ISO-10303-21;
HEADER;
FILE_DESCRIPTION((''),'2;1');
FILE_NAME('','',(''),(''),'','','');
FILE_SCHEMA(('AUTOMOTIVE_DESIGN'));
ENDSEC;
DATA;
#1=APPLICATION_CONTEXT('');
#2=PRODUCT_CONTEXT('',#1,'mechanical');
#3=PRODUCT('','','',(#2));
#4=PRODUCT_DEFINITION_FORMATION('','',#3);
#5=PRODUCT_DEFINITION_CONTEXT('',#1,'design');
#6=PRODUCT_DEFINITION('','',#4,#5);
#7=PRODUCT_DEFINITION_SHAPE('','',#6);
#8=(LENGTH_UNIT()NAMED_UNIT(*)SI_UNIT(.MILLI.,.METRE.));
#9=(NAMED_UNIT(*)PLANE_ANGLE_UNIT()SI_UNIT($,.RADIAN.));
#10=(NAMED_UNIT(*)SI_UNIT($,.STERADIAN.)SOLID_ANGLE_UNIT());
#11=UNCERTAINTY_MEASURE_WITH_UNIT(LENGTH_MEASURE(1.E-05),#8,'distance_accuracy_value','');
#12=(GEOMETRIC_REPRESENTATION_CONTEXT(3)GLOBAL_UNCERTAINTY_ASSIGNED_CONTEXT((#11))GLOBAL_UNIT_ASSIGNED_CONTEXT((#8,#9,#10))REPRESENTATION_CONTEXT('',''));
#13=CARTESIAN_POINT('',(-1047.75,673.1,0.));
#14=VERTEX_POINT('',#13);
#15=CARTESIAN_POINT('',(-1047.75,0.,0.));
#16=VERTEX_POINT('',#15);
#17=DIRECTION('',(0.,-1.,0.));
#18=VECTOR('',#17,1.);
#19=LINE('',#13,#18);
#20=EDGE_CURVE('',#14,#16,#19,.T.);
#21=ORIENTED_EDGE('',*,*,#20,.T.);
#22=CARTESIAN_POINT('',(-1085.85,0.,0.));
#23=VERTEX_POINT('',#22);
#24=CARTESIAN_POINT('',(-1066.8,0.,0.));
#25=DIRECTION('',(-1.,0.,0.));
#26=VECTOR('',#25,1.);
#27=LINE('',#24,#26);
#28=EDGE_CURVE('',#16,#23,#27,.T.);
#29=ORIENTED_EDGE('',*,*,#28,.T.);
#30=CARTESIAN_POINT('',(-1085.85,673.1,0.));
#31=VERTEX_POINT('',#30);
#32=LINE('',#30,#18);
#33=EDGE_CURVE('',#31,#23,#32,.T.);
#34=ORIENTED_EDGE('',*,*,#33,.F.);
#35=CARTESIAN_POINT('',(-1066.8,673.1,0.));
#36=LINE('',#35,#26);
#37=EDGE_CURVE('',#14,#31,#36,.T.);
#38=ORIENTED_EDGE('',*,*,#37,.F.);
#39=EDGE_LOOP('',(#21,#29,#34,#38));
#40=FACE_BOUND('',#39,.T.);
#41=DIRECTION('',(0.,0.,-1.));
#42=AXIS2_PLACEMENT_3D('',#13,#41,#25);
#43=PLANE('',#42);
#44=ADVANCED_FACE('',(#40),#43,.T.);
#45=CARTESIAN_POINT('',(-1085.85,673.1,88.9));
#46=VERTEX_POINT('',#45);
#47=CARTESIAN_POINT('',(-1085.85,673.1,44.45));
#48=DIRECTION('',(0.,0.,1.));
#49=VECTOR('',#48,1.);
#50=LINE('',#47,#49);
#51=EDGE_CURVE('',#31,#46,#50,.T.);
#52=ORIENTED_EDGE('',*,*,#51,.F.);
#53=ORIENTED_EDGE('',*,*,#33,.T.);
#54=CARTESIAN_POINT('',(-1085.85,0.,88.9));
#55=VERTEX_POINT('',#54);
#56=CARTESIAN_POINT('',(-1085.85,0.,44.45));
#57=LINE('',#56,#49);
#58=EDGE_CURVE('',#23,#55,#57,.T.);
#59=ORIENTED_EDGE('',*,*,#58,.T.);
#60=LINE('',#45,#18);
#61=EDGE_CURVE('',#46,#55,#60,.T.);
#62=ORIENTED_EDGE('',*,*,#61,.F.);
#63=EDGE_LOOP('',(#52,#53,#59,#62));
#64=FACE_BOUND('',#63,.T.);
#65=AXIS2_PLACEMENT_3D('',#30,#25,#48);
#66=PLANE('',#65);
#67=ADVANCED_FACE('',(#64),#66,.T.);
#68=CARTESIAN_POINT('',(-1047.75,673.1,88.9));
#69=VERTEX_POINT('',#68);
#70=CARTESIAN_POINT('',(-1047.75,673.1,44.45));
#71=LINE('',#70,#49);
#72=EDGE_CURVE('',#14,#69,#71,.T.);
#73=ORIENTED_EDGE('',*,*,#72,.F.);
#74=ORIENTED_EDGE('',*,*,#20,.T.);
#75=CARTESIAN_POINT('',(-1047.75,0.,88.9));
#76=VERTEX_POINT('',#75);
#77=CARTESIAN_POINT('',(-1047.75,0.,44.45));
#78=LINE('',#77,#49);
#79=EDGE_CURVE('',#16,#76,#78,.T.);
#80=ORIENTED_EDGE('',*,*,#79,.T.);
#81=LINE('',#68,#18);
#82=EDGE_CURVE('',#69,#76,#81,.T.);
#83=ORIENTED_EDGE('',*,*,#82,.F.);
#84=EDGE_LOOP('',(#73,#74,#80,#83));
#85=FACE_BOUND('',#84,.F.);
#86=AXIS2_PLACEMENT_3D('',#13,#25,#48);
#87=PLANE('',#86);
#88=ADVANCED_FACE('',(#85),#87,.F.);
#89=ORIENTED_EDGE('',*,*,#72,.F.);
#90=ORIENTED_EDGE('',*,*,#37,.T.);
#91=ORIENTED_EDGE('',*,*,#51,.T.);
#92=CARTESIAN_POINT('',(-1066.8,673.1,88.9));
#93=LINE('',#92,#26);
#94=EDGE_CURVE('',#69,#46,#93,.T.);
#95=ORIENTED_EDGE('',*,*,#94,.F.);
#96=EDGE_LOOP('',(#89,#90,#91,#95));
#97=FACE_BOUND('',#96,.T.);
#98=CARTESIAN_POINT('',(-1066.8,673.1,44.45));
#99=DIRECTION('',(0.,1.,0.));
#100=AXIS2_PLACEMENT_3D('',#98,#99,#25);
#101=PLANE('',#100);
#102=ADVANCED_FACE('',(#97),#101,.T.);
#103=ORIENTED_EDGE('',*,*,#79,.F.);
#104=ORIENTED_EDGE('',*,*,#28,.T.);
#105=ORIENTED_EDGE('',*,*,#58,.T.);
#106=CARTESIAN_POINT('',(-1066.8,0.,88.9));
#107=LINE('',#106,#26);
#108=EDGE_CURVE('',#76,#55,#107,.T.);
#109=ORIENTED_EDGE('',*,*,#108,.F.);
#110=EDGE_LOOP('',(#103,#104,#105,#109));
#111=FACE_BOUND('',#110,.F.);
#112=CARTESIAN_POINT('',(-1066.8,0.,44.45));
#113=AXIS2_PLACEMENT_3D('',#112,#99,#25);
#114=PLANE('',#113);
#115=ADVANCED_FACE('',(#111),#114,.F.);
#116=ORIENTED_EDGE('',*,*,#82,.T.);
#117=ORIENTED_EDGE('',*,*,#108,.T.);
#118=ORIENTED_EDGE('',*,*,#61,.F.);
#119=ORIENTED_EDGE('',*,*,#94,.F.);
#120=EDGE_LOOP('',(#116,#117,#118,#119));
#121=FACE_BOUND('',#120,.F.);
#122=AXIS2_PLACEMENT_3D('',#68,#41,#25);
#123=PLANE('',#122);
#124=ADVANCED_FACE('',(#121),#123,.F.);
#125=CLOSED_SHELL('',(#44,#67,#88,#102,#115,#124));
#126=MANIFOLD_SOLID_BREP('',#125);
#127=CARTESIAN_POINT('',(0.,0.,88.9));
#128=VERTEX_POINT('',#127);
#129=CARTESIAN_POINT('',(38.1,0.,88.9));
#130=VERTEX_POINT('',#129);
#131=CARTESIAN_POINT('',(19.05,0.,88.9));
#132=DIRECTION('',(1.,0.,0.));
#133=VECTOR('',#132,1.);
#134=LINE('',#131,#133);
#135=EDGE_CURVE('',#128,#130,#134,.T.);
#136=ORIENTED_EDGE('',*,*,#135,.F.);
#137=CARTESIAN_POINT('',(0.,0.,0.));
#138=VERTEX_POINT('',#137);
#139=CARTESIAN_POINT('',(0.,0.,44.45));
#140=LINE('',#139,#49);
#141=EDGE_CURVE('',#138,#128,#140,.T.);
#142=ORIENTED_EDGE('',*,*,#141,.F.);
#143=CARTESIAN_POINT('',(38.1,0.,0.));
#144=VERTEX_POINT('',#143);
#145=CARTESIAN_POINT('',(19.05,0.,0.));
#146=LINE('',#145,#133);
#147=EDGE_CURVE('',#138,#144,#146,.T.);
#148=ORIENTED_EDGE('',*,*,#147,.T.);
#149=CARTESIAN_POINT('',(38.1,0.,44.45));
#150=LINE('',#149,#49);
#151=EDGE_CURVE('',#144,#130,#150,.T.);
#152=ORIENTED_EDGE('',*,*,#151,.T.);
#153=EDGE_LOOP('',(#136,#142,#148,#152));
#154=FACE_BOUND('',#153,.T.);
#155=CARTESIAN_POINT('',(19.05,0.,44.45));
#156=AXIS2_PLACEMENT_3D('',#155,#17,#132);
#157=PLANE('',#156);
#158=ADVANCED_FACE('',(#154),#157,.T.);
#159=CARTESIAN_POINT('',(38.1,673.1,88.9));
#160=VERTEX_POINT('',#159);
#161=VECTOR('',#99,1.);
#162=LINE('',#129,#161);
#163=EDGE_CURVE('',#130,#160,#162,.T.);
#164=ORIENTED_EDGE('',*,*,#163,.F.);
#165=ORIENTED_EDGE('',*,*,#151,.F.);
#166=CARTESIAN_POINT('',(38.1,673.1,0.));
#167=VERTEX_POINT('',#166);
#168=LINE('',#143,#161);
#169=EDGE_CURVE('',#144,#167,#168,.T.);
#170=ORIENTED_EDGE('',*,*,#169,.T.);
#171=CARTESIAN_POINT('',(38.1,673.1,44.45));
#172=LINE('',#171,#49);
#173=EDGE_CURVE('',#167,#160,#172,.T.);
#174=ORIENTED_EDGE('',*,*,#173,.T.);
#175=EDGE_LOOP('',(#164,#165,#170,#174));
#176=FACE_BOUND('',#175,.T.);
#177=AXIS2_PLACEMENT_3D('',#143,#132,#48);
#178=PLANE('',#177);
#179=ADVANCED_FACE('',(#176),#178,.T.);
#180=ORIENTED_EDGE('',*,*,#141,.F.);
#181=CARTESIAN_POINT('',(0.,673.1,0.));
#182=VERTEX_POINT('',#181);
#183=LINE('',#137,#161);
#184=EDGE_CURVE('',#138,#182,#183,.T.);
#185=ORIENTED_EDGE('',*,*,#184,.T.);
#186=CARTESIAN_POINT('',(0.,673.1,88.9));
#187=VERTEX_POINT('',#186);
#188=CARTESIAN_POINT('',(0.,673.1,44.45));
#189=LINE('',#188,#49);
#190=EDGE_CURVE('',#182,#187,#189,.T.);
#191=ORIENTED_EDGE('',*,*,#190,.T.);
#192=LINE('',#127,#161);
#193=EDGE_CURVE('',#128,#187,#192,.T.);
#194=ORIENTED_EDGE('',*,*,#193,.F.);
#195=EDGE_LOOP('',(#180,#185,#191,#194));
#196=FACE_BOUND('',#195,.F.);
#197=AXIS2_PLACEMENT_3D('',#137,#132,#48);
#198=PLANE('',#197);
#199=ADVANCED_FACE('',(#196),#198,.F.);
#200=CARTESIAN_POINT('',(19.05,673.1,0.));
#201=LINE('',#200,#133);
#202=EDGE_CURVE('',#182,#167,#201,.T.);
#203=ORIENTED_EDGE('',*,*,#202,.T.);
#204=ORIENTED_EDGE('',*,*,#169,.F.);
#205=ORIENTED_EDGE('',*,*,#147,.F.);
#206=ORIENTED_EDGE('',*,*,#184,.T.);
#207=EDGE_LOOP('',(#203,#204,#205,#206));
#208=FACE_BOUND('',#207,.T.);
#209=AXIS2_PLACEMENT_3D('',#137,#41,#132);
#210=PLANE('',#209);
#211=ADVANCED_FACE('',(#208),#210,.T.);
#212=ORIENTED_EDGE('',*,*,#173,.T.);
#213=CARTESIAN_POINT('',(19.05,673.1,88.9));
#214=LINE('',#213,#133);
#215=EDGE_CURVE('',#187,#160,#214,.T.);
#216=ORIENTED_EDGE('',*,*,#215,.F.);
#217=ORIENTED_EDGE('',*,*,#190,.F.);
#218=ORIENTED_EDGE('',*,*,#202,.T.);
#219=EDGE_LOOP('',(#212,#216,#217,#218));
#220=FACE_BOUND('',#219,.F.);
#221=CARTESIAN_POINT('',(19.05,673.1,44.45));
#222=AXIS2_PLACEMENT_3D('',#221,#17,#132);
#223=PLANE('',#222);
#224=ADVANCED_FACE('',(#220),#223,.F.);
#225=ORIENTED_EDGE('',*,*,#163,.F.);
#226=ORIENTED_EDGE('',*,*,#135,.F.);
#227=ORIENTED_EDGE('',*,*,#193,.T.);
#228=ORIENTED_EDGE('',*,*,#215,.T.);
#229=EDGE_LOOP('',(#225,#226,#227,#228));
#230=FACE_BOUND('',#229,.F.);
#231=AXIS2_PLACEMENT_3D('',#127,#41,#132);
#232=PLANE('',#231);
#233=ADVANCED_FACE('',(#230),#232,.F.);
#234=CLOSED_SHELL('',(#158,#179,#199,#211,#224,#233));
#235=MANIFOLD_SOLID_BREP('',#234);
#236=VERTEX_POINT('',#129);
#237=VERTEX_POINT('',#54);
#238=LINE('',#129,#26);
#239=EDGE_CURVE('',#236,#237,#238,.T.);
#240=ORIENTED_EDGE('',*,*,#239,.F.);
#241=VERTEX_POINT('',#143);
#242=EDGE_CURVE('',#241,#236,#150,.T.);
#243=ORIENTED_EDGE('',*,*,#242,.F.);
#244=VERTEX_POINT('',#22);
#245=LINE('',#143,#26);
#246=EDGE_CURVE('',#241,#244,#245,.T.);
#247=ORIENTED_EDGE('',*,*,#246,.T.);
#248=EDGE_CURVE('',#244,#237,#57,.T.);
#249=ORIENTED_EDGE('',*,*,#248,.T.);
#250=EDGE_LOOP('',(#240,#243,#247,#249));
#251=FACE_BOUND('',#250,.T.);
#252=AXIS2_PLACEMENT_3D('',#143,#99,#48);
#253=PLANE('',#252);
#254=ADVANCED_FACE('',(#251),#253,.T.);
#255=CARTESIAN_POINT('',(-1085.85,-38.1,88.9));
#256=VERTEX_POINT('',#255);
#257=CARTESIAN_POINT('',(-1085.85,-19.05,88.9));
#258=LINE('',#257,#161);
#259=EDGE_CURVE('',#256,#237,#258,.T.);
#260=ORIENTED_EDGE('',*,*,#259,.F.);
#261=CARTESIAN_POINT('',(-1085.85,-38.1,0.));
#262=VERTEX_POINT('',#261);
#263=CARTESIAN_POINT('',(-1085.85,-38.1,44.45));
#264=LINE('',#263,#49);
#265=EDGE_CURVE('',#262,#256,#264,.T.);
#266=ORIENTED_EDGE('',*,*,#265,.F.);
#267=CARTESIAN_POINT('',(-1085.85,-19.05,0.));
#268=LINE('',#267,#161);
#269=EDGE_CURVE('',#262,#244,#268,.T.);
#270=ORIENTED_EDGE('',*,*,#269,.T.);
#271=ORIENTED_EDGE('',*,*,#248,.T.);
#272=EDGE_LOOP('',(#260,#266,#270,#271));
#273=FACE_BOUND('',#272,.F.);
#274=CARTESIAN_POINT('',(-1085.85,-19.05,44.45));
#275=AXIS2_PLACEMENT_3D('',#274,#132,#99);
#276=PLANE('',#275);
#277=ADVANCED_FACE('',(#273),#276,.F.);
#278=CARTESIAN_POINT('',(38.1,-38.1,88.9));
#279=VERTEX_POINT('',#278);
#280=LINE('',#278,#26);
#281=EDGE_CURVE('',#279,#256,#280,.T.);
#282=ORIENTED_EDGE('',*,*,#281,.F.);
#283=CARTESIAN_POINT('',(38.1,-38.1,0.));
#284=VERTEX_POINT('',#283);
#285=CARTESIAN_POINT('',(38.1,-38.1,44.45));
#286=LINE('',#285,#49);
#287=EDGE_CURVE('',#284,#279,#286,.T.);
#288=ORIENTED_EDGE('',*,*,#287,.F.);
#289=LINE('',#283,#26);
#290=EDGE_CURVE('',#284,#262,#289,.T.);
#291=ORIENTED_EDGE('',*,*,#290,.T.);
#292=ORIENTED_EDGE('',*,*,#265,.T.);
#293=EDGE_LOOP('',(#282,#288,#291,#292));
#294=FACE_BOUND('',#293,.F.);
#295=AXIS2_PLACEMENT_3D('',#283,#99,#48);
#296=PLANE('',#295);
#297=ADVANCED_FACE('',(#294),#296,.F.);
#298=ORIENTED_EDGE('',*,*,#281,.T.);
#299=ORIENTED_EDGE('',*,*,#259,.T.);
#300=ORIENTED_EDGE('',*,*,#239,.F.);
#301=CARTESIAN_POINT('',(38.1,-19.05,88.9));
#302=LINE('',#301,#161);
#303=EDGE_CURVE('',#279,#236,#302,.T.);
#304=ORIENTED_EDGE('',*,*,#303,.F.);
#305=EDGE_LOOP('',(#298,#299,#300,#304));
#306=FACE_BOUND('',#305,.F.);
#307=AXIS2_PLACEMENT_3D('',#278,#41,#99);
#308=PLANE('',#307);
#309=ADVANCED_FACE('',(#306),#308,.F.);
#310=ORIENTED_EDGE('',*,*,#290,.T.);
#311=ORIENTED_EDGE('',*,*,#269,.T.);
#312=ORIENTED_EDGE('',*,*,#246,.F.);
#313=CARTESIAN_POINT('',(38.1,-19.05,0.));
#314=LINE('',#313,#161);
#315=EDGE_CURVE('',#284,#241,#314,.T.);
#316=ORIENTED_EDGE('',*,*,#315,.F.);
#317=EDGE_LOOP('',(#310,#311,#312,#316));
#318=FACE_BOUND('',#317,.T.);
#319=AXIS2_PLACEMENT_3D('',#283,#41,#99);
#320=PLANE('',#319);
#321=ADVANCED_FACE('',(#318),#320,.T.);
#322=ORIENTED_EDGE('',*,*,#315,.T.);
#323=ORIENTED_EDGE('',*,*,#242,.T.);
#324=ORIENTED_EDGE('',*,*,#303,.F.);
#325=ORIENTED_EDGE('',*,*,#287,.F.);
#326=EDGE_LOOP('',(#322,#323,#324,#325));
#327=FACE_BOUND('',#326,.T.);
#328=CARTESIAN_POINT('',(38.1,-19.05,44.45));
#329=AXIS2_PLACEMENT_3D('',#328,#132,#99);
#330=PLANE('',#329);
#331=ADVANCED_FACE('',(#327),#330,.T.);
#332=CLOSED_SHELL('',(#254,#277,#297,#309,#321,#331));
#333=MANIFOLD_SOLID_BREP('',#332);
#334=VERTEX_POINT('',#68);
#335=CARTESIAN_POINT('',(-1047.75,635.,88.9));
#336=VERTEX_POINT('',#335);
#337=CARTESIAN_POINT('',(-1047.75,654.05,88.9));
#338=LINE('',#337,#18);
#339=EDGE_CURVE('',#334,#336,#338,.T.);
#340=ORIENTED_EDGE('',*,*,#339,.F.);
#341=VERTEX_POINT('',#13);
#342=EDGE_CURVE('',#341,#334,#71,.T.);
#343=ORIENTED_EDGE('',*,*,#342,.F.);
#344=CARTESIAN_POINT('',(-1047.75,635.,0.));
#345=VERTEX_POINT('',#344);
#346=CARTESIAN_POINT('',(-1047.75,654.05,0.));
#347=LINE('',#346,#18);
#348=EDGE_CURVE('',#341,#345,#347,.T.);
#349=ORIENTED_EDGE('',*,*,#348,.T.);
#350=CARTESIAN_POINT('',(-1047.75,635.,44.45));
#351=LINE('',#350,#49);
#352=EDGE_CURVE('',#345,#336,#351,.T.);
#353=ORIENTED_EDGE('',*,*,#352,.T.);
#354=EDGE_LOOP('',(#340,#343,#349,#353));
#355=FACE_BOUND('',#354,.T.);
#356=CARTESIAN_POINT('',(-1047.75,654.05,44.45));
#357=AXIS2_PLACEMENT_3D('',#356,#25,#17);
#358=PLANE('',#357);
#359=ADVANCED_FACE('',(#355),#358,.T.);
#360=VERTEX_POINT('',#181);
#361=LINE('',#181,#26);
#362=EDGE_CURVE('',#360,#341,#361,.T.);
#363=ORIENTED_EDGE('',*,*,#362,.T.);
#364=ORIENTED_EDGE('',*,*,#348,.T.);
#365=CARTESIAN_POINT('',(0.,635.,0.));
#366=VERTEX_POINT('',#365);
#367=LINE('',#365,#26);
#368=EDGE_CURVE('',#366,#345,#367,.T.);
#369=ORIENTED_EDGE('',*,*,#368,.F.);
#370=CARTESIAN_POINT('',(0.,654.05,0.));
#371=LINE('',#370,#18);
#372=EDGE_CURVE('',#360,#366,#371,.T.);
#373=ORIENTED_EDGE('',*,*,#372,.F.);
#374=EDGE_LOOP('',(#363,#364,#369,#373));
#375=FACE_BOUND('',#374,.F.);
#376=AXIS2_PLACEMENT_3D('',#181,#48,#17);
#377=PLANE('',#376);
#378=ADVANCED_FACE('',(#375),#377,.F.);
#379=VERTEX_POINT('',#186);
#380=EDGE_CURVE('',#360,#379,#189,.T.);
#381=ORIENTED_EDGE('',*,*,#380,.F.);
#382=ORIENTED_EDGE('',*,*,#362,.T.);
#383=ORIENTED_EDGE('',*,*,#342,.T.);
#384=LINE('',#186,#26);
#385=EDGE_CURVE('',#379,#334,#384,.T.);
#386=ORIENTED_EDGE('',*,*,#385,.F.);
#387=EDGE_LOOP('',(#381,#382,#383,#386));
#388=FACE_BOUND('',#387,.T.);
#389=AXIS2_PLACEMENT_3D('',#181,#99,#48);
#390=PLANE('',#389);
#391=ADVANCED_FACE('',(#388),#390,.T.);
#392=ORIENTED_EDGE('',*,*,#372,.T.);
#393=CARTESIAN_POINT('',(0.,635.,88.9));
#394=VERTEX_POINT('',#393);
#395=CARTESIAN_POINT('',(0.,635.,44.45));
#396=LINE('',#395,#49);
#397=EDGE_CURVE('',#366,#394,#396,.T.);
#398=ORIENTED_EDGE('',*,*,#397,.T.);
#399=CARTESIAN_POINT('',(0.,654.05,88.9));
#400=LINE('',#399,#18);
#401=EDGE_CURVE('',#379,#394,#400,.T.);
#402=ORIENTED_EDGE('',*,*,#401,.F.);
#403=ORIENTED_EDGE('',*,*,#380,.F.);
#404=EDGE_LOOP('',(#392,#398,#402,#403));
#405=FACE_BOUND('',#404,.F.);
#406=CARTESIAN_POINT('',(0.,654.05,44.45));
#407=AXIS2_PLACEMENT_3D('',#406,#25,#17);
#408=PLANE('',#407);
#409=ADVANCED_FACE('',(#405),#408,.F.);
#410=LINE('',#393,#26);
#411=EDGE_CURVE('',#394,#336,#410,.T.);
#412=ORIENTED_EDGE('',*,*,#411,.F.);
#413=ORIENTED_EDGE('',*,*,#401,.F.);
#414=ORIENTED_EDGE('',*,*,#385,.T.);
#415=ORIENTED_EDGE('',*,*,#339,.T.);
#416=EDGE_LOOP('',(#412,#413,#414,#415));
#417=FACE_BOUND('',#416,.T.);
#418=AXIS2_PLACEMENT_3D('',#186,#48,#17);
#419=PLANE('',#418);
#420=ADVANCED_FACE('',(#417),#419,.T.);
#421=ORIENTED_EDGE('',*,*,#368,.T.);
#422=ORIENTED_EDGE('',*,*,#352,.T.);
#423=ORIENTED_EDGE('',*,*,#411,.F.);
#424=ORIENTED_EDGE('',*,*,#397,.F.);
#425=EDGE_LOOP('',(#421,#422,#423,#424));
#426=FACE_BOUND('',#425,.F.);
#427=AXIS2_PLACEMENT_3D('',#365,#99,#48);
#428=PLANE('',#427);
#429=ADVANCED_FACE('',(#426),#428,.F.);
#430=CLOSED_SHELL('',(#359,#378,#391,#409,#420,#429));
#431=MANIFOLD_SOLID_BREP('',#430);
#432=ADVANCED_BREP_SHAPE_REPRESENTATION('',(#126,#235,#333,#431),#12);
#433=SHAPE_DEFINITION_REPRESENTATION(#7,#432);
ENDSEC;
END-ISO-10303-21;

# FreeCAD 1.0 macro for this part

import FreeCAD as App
import Part
import Sketcher
from FreeCAD import Vector
Q = App.Units.Quantity


def add_polygon(sketch, points):
    """Adds a closed chain of lines whose ends are joined by coincident constraints."""
    first, n = sketch.GeometryCount, len(points)
    for a, b in zip(points, points[1:] + points[:1]):
        sketch.addGeometry(Part.LineSegment(App.Vector(*a, 0), App.Vector(*b, 0)), False)
    for i in range(n):
        sketch.addConstraint(Sketcher.Constraint("Coincident", first + i, 2, first + (i + 1) % n, 1))

doc = App.newDocument("Part")
body = doc.addObject("PartDesign::Body", "Body")

sketch1 = body.newObject("Sketcher::SketchObject", "Sketch")
sketch1.AttachmentSupport = (doc.getObject("XZ_Plane"), [""])
sketch1.MapMode = "FlatFace"
add_polygon(sketch1, [(0, 89), (0, 0), (38, 0), (38, 89)])
sketch1.addConstraint(Sketcher.Constraint("Vertical", 0))
sketch1.addConstraint(Sketcher.Constraint("Horizontal", 1))
sketch1.addConstraint(Sketcher.Constraint("Vertical", 2))
sketch1.addConstraint(Sketcher.Constraint("Horizontal", 3))
sketch1.addConstraint(Sketcher.Constraint("Coincident", 0, 2, -1, 1))
sketch1.addConstraint(Sketcher.Constraint("DistanceX", 1, 1, 1, 2, Q("1.5 in")))
sketch1.addConstraint(Sketcher.Constraint("DistanceY", 0, 2, 0, 1, Q("3.5 in")))
pad1 = body.newObject("PartDesign::Pad", "Pad")
pad1.Profile = sketch1
pad1.Length = Q("26.5 in")
pad1.Reversed = True
body2 = doc.addObject("PartDesign::Body", "Body001")

sketch2 = body2.newObject("Sketcher::SketchObject", "Sketch001")
sketch2.AttachmentSupport = (doc.getObject("YZ_Plane001"), [""])
sketch2.MapMode = "FlatFace"
add_polygon(sketch2, [(673, 89), (673, 0), (635, 0), (635, 89)])
sketch2.addConstraint(Sketcher.Constraint("Vertical", 0))
sketch2.addConstraint(Sketcher.Constraint("Horizontal", 1))
sketch2.addConstraint(Sketcher.Constraint("Vertical", 2))
sketch2.addConstraint(Sketcher.Constraint("Horizontal", 3))
sketch2.addConstraint(Sketcher.Constraint("PointOnObject", 0, 2, -1))
sketch2.addConstraint(Sketcher.Constraint("DistanceX", 1, 2, 1, 1, Q("1.5 in")))
sketch2.addConstraint(Sketcher.Constraint("DistanceY", 0, 2, 0, 1, Q("3.5 in")))
sketch2.addConstraint(Sketcher.Constraint("DistanceX", -1, 1, 1, 2, Q("25 in")))
pad2 = body2.newObject("PartDesign::Pad", "Pad001")
pad2.Profile = sketch2
pad2.Length = Q("41.25 in")
pad2.Reversed = True
body3 = doc.addObject("PartDesign::Body", "Body002")

sketch3 = body3.newObject("Sketcher::SketchObject", "Sketch002")
sketch3.AttachmentSupport = (doc.getObject("XZ_Plane002"), [""])
sketch3.MapMode = "FlatFace"
sketch3.AttachmentOffset = App.Placement(Vector(0, 0, -26.5 * 25.4), App.Rotation())
add_polygon(sketch3, [(-1048, 89), (-1048, 0), (-1086, 0), (-1086, 89)])
sketch3.addConstraint(Sketcher.Constraint("Vertical", 0))
sketch3.addConstraint(Sketcher.Constraint("Horizontal", 1))
sketch3.addConstraint(Sketcher.Constraint("Vertical", 2))
sketch3.addConstraint(Sketcher.Constraint("Horizontal", 3))
sketch3.addConstraint(Sketcher.Constraint("PointOnObject", 0, 2, -1))
sketch3.addConstraint(Sketcher.Constraint("DistanceX", 1, 2, 1, 1, Q("1.5 in")))
sketch3.addConstraint(Sketcher.Constraint("DistanceY", 0, 2, 0, 1, Q("3.5 in")))
sketch3.addConstraint(Sketcher.Constraint("DistanceX", 0, 2, -1, 1, Q("41.25 in")))
pad3 = body3.newObject("PartDesign::Pad", "Pad002")
pad3.Profile = sketch3
pad3.Length = Q("26.5 in")
body4 = doc.addObject("PartDesign::Body", "Body003")

sketch4 = body4.newObject("Sketcher::SketchObject", "Sketch003")
sketch4.AttachmentSupport = (doc.getObject("YZ_Plane003"), [""])
sketch4.MapMode = "FlatFace"
sketch4.AttachmentOffset = App.Placement(Vector(0, 0, 1.5 * 25.4), App.Rotation())
add_polygon(sketch4, [(-38, 89), (-38, 0), (0, 0), (0, 89)])
sketch4.addConstraint(Sketcher.Constraint("Vertical", 0))
sketch4.addConstraint(Sketcher.Constraint("Horizontal", 1))
sketch4.addConstraint(Sketcher.Constraint("Vertical", 2))
sketch4.addConstraint(Sketcher.Constraint("Horizontal", 3))
sketch4.addConstraint(Sketcher.Constraint("Coincident", 1, 2, -1, 1))
sketch4.addConstraint(Sketcher.Constraint("DistanceX", 1, 1, 1, 2, Q("1.5 in")))
sketch4.addConstraint(Sketcher.Constraint("DistanceY", 0, 2, 0, 1, Q("3.5 in")))
pad4 = body4.newObject("PartDesign::Pad", "Pad003")
pad4.Profile = sketch4
pad4.Length = Q("44.25 in")
pad4.Reversed = True

doc.recompute()
